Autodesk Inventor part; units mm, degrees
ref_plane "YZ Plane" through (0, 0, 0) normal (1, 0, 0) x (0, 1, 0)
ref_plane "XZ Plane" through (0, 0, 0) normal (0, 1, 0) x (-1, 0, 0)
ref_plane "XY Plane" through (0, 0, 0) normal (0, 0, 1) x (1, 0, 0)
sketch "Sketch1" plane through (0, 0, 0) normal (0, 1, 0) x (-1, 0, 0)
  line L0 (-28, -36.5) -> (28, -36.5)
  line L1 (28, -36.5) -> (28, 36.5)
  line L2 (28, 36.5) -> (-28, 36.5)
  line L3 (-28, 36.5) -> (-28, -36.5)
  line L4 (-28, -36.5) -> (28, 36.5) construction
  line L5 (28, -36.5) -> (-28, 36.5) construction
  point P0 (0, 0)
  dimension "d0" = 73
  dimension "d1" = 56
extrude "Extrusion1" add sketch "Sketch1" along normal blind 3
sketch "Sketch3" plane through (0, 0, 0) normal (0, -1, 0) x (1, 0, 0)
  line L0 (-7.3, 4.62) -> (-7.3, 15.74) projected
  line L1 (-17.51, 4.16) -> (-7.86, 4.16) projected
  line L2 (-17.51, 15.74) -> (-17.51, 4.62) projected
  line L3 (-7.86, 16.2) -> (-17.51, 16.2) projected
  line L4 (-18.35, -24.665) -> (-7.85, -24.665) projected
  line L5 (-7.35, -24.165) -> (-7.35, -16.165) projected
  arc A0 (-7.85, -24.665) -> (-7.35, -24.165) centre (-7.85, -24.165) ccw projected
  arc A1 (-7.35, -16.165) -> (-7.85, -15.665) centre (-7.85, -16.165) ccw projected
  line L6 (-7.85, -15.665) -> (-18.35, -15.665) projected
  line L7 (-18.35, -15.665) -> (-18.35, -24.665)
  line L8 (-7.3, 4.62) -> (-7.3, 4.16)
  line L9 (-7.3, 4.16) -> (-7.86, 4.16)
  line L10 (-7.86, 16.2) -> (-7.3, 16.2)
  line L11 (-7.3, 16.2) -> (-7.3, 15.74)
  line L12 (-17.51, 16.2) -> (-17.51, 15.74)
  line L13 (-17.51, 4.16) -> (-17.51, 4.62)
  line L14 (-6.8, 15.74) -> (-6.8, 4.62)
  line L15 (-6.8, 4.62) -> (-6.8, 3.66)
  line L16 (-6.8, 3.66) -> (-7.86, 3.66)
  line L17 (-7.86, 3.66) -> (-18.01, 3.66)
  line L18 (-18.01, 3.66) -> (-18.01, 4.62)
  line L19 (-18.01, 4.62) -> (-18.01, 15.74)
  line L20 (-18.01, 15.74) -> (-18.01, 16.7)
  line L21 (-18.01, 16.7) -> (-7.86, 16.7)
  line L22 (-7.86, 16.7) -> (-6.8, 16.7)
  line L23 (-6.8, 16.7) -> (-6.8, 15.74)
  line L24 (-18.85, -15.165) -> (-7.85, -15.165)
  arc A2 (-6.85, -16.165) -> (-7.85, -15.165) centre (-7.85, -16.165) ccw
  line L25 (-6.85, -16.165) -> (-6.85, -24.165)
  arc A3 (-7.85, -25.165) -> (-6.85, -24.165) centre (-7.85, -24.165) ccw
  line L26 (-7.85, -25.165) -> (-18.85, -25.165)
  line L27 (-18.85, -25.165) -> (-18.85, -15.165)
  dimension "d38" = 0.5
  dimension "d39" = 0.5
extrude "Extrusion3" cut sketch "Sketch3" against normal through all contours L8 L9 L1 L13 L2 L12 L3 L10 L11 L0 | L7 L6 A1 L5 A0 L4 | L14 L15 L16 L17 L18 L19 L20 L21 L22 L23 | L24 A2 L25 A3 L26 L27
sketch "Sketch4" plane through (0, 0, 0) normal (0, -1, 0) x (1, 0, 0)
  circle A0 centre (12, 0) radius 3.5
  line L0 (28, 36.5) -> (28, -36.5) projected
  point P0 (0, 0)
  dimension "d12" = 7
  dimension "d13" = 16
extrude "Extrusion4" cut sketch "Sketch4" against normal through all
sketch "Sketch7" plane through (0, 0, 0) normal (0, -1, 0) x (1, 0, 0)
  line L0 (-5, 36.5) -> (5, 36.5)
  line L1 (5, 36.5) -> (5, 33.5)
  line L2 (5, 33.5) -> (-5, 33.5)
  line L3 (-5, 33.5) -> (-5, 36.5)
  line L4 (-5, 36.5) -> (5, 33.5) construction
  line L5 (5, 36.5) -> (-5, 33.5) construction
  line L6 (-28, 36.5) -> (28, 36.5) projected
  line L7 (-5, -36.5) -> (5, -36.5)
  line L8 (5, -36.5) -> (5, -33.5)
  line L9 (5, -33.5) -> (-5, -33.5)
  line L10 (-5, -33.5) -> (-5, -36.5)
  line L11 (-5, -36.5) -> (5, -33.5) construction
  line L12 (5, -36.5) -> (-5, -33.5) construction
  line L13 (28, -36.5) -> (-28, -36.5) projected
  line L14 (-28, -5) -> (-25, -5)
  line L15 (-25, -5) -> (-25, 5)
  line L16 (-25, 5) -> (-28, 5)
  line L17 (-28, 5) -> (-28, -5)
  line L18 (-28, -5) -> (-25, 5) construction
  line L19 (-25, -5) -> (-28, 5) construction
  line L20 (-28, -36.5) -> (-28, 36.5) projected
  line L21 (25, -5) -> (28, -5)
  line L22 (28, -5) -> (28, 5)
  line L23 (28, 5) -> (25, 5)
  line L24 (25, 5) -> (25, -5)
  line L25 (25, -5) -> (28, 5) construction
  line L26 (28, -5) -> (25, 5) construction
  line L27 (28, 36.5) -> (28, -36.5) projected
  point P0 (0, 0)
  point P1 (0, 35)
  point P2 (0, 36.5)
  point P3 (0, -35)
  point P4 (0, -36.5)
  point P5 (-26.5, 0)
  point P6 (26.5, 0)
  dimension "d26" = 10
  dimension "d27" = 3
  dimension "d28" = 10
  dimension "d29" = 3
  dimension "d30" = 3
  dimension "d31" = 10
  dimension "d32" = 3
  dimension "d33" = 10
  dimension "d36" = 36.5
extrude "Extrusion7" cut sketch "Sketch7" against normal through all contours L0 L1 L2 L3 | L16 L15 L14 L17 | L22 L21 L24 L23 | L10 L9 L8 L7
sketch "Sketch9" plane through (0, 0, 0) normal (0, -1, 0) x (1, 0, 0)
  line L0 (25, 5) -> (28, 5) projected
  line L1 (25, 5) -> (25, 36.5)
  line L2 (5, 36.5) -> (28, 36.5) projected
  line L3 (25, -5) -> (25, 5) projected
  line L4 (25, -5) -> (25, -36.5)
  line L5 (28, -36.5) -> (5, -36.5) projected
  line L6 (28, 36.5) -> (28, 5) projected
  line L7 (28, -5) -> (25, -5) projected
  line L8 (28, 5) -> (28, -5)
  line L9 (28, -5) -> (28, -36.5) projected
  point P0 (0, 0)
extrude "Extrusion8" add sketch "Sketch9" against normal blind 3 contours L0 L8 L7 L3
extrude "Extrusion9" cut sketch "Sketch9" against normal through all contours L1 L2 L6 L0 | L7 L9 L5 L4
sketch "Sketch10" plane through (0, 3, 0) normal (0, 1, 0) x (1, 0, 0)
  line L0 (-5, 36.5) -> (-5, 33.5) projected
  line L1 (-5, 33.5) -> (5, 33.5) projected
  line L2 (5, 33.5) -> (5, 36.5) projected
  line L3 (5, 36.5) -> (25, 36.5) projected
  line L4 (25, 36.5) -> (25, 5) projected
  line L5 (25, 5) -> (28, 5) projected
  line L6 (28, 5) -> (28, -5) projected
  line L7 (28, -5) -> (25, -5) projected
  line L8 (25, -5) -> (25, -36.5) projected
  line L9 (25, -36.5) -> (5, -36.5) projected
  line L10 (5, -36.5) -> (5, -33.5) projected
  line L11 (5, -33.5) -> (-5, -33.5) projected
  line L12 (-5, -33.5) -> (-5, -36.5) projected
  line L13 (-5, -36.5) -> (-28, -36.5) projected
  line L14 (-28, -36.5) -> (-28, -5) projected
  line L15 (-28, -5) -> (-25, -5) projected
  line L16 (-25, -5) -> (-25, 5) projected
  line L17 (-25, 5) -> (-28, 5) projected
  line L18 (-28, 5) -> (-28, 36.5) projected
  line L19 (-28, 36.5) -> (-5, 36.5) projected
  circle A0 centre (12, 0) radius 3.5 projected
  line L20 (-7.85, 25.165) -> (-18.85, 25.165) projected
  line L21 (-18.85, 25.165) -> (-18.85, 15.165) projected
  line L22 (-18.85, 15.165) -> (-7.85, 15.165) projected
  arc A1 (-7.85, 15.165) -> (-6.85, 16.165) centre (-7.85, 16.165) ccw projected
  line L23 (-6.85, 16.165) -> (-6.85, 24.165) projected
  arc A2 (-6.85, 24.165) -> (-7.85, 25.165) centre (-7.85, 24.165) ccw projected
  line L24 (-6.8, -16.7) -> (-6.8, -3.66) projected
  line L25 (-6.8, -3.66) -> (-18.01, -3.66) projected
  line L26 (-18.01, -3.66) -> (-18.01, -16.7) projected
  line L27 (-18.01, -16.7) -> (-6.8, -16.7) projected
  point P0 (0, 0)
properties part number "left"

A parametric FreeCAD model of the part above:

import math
import FreeCAD as App
import Part
import Sketcher

V = App.Vector
Q = App.Units.Quantity

doc = App.newDocument("Part")
body = doc.addObject("PartDesign::Body", "Body")

sketch1 = body.newObject("Sketcher::SketchObject", "Sketch")
sketch1.AttachmentSupport = (doc.getObject("XZ_Plane"), [""])
sketch1.MapMode = "FlatFace"
sketch1.addGeometry([
    Part.LineSegment(V(28, 36, 0), V(28, -36, 0)),
    Part.LineSegment(V(28, -36, 0), V(-28, -36, 0)),
    Part.LineSegment(V(-28, -36, 0), V(-28, 36, 0)),
    Part.LineSegment(V(-28, 36, 0), V(28, 36, 0)),
], False)
sketch1.addConstraint([
    Sketcher.Constraint("Coincident", 0, 2, 1, 1),
    Sketcher.Constraint("Coincident", 1, 2, 2, 1),
    Sketcher.Constraint("Coincident", 2, 2, 3, 1),
    Sketcher.Constraint("Coincident", 3, 2, 0, 1),
    Sketcher.Constraint("Vertical", 0),
    Sketcher.Constraint("Horizontal", 1),
    Sketcher.Constraint("Vertical", 2),
    Sketcher.Constraint("Horizontal", 3),
    Sketcher.Constraint("Symmetric", 0, 2, 2, 2, -1, 1),
    Sketcher.Constraint("DistanceX", 1, 2, 1, 1, Q("56 mm")),
    Sketcher.Constraint("DistanceY", 0, 2, 0, 1, Q("73 mm")),
])
pad1 = body.newObject("PartDesign::Pad", "Pad")
pad1.Profile = sketch1
pad1.Length = 3
pad1.Reversed = True

sketch2 = body.newObject("Sketcher::SketchObject", "Sketch001")
sketch2.AttachmentSupport = (doc.getObject("XZ_Plane"), [""])
sketch2.MapMode = "FlatFace"
sketch2.addGeometry([
    Part.LineSegment(V(-6.8, 16.7, 0), V(-18, 16.7, 0)),
    Part.LineSegment(V(-18, 16.7, 0), V(-18, 3.7, 0)),
    Part.LineSegment(V(-18, 3.7, 0), V(-6.8, 3.7, 0)),
    Part.LineSegment(V(-6.8, 3.7, 0), V(-6.8, 16.7, 0)),
    Part.LineSegment(V(-7.8, -15.2, 0), V(-18.9, -15.2, 0)),
    Part.LineSegment(V(-18.9, -15.2, 0), V(-18.9, -25.2, 0)),
    Part.LineSegment(V(-18.9, -25.2, 0), V(-7.8, -25.2, 0)),
    Part.ArcOfCircle(Part.Circle(V(-7.8, -24.2, 0), V(0, 0, 1), 1), math.radians(-90), math.radians(0)),
    Part.LineSegment(V(-6.8, -24.2, 0), V(-6.8, -16.2, 0)),
    Part.ArcOfCircle(Part.Circle(V(-7.8, -16.2, 0), V(0, 0, 1), 1), math.radians(0), math.radians(90)),
], False)
sketch2.addConstraint([
    Sketcher.Constraint("Coincident", 0, 2, 1, 1),
    Sketcher.Constraint("Coincident", 1, 2, 2, 1),
    Sketcher.Constraint("Coincident", 2, 2, 3, 1),
    Sketcher.Constraint("Coincident", 3, 2, 0, 1),
    Sketcher.Constraint("Coincident", 4, 2, 5, 1),
    Sketcher.Constraint("Coincident", 5, 2, 6, 1),
    Sketcher.Constraint("Tangent", 6, 2, 7, 1),
    Sketcher.Constraint("Tangent", 7, 2, 8, 1),
    Sketcher.Constraint("Tangent", 8, 2, 9, 1),
    Sketcher.Constraint("Tangent", 9, 2, 4, 1),
    Sketcher.Constraint("Horizontal", 0),
    Sketcher.Constraint("Vertical", 1),
    Sketcher.Constraint("Horizontal", 2),
    Sketcher.Constraint("Vertical", 3),
    Sketcher.Constraint("Horizontal", 4),
    Sketcher.Constraint("Vertical", 5),
    Sketcher.Constraint("Horizontal", 6),
    Sketcher.Constraint("Vertical", 8),
    Sketcher.Constraint("Equal", 7, 9),
    Sketcher.Constraint("Radius", 7, Q("1 mm")),
    Sketcher.Constraint("DistanceX", 4, 2, 4, 1, Q("11 mm")),
    Sketcher.Constraint("DistanceY", 5, 2, 5, 1, Q("10 mm")),
    Sketcher.Constraint("DistanceX", 0, 2, 0, 1, Q("11.21 mm")),
    Sketcher.Constraint("DistanceY", 1, 2, 1, 1, Q("13.04 mm")),
    Sketcher.Constraint("DistanceY", -1, 1, 0, 2, Q("16.7 mm")),
    Sketcher.Constraint("DistanceX", 2, 2, -1, 1, Q("6.8 mm")),
    Sketcher.Constraint("DistanceX", 7, 3, -1, 1, Q("7.85 mm")),
    Sketcher.Constraint("DistanceY", 7, 3, -1, 1, Q("24.165 mm")),
])
pocket1 = body.newObject("PartDesign::Pocket", "Pocket")
pocket1.Profile = sketch2
pocket1.Type = "ThroughAll"

sketch3 = body.newObject("Sketcher::SketchObject", "Sketch002")
sketch3.AttachmentSupport = (doc.getObject("XZ_Plane"), [""])
sketch3.MapMode = "FlatFace"
sketch3.addGeometry(Part.Circle(V(12, 0, 0), V(0, 0, 1), 3.5), False)
sketch3.addConstraint([
    Sketcher.Constraint("PointOnObject", 0, 3, -1),
    Sketcher.Constraint("Diameter", 0, Q("7 mm")),
    Sketcher.Constraint("DistanceX", -1, 1, 0, 3, Q("12 mm")),
])
pocket2 = body.newObject("PartDesign::Pocket", "Pocket001")
pocket2.Profile = sketch3
pocket2.Type = "ThroughAll"

sketch4 = body.newObject("Sketcher::SketchObject", "Sketch003")
sketch4.AttachmentSupport = (doc.getObject("XZ_Plane"), [""])
sketch4.MapMode = "FlatFace"
sketch4.addGeometry([
    Part.LineSegment(V(5, 36.5, 0), V(-5, 36.5, 0)),
    Part.LineSegment(V(-5, 36.5, 0), V(-5, 33.5, 0)),
    Part.LineSegment(V(-5, 33.5, 0), V(5, 33.5, 0)),
    Part.LineSegment(V(5, 33.5, 0), V(5, 36.5, 0)),
    Part.LineSegment(V(-25, 5, 0), V(-28, 5, 0)),
    Part.LineSegment(V(-28, 5, 0), V(-28, -5, 0)),
    Part.LineSegment(V(-28, -5, 0), V(-25, -5, 0)),
    Part.LineSegment(V(-25, -5, 0), V(-25, 5, 0)),
    Part.LineSegment(V(28, -5, 0), V(28, 5, 0)),
    Part.LineSegment(V(28, 5, 0), V(25, 5, 0)),
    Part.LineSegment(V(25, 5, 0), V(25, -5, 0)),
    Part.LineSegment(V(25, -5, 0), V(28, -5, 0)),
    Part.LineSegment(V(-5, -33.5, 0), V(-5, -36.5, 0)),
    Part.LineSegment(V(-5, -36.5, 0), V(5, -36.5, 0)),
    Part.LineSegment(V(5, -36.5, 0), V(5, -33.5, 0)),
    Part.LineSegment(V(5, -33.5, 0), V(-5, -33.5, 0)),
], False)
sketch4.addConstraint([
    Sketcher.Constraint("Coincident", 0, 2, 1, 1),
    Sketcher.Constraint("Coincident", 1, 2, 2, 1),
    Sketcher.Constraint("Coincident", 2, 2, 3, 1),
    Sketcher.Constraint("Coincident", 3, 2, 0, 1),
    Sketcher.Constraint("Coincident", 4, 2, 5, 1),
    Sketcher.Constraint("Coincident", 5, 2, 6, 1),
    Sketcher.Constraint("Coincident", 6, 2, 7, 1),
    Sketcher.Constraint("Coincident", 7, 2, 4, 1),
    Sketcher.Constraint("Coincident", 8, 2, 9, 1),
    Sketcher.Constraint("Coincident", 9, 2, 10, 1),
    Sketcher.Constraint("Coincident", 10, 2, 11, 1),
    Sketcher.Constraint("Coincident", 11, 2, 8, 1),
    Sketcher.Constraint("Coincident", 12, 2, 13, 1),
    Sketcher.Constraint("Coincident", 13, 2, 14, 1),
    Sketcher.Constraint("Coincident", 14, 2, 15, 1),
    Sketcher.Constraint("Coincident", 15, 2, 12, 1),
    Sketcher.Constraint("Horizontal", 0),
    Sketcher.Constraint("Vertical", 1),
    Sketcher.Constraint("Horizontal", 2),
    Sketcher.Constraint("Vertical", 3),
    Sketcher.Constraint("Horizontal", 4),
    Sketcher.Constraint("Vertical", 5),
    Sketcher.Constraint("Horizontal", 6),
    Sketcher.Constraint("Vertical", 7),
    Sketcher.Constraint("Vertical", 8),
    Sketcher.Constraint("Horizontal", 9),
    Sketcher.Constraint("Vertical", 10),
    Sketcher.Constraint("Horizontal", 11),
    Sketcher.Constraint("Vertical", 12),
    Sketcher.Constraint("Horizontal", 13),
    Sketcher.Constraint("Vertical", 14),
    Sketcher.Constraint("Horizontal", 15),
    Sketcher.Constraint("Symmetric", 5, 2, 8, 2, -1, 1),
    Sketcher.Constraint("Symmetric", 7, 2, 10, 2, -1, 1),
    Sketcher.Constraint("Symmetric", 3, 2, 12, 2, -1, 1),
    Sketcher.Constraint("Symmetric", 1, 2, 14, 2, -1, 1),
    Sketcher.Constraint("Horizontal", 7, 2, 8, 2),
    Sketcher.Constraint("Vertical", 1, 2, 12, 2),
    Sketcher.Constraint("Equal", 11, 1),
    Sketcher.Constraint("Equal", 15, 5),
    Sketcher.Constraint("DistanceX", 0, 2, 0, 1, Q("10 mm")),
    Sketcher.Constraint("DistanceX", 4, 2, 4, 1, Q("3 mm")),
    Sketcher.Constraint("DistanceY", -1, 1, 0, 2, Q("36.5 mm")),
    Sketcher.Constraint("DistanceX", 4, 2, -1, 1, Q("28 mm")),
])
pocket3 = body.newObject("PartDesign::Pocket", "Pocket002")
pocket3.Profile = sketch4
pocket3.Type = "ThroughAll"

sketch5 = body.newObject("Sketcher::SketchObject", "Sketch004")
sketch5.AttachmentSupport = (doc.getObject("XZ_Plane"), [""])
sketch5.MapMode = "FlatFace"
sketch5.addGeometry([
    Part.LineSegment(V(28, 5, 0), V(25, 5, 0)),
    Part.LineSegment(V(25, 5, 0), V(25, -5, 0)),
    Part.LineSegment(V(25, -5, 0), V(28, -5, 0)),
    Part.LineSegment(V(28, -5, 0), V(28, 5, 0)),
], False)
sketch5.addConstraint([
    Sketcher.Constraint("Coincident", 0, 2, 1, 1),
    Sketcher.Constraint("Coincident", 1, 2, 2, 1),
    Sketcher.Constraint("Coincident", 2, 2, 3, 1),
    Sketcher.Constraint("Coincident", 3, 2, 0, 1),
    Sketcher.Constraint("Horizontal", 0),
    Sketcher.Constraint("Vertical", 1),
    Sketcher.Constraint("Horizontal", 2),
    Sketcher.Constraint("Vertical", 3),
    Sketcher.Constraint("DistanceX", 0, 2, 0, 1, Q("3 mm")),
    Sketcher.Constraint("DistanceY", 1, 2, 1, 1, Q("10 mm")),
    Sketcher.Constraint("DistanceX", -1, 1, 0, 2, Q("25 mm")),
    Sketcher.Constraint("DistanceY", -1, 1, 0, 2, Q("5 mm")),
])
pad2 = body.newObject("PartDesign::Pad", "Pad001")
pad2.Profile = sketch5
pad2.Length = 3
pad2.Reversed = True

sketch6 = body.newObject("Sketcher::SketchObject", "Sketch005")
sketch6.AttachmentSupport = (doc.getObject("XZ_Plane"), [""])
sketch6.MapMode = "FlatFace"
sketch6.addGeometry([
    Part.LineSegment(V(25, 36.5, 0), V(25, 5, 0)),
    Part.LineSegment(V(25, 5, 0), V(28, 5, 0)),
    Part.LineSegment(V(28, 5, 0), V(28, 36.5, 0)),
    Part.LineSegment(V(28, 36.5, 0), V(25, 36.5, 0)),
    Part.LineSegment(V(28, -5, 0), V(25, -5, 0)),
    Part.LineSegment(V(25, -5, 0), V(25, -36.5, 0)),
    Part.LineSegment(V(25, -36.5, 0), V(28, -36.5, 0)),
    Part.LineSegment(V(28, -36.5, 0), V(28, -5, 0)),
], False)
sketch6.addConstraint([
    Sketcher.Constraint("Coincident", 0, 2, 1, 1),
    Sketcher.Constraint("Coincident", 1, 2, 2, 1),
    Sketcher.Constraint("Coincident", 2, 2, 3, 1),
    Sketcher.Constraint("Coincident", 3, 2, 0, 1),
    Sketcher.Constraint("Coincident", 4, 2, 5, 1),
    Sketcher.Constraint("Coincident", 5, 2, 6, 1),
    Sketcher.Constraint("Coincident", 6, 2, 7, 1),
    Sketcher.Constraint("Coincident", 7, 2, 4, 1),
    Sketcher.Constraint("Vertical", 0),
    Sketcher.Constraint("Horizontal", 1),
    Sketcher.Constraint("Vertical", 2),
    Sketcher.Constraint("Horizontal", 3),
    Sketcher.Constraint("Horizontal", 4),
    Sketcher.Constraint("Vertical", 5),
    Sketcher.Constraint("Horizontal", 6),
    Sketcher.Constraint("Vertical", 7),
    Sketcher.Constraint("Symmetric", 0, 2, 4, 2, -1),
    Sketcher.Constraint("Symmetric", 2, 2, 6, 2, -1),
    Sketcher.Constraint("DistanceX", 1, 1, 1, 2, Q("3 mm")),
    Sketcher.Constraint("DistanceY", 0, 2, 0, 1, Q("31.5 mm")),
    Sketcher.Constraint("DistanceX", -1, 1, 0, 2, Q("25 mm")),
    Sketcher.Constraint("DistanceY", -1, 1, 0, 2, Q("5 mm")),
])
pocket4 = body.newObject("PartDesign::Pocket", "Pocket003")
pocket4.Profile = sketch6
pocket4.Type = "ThroughAll"

doc.recompute()
